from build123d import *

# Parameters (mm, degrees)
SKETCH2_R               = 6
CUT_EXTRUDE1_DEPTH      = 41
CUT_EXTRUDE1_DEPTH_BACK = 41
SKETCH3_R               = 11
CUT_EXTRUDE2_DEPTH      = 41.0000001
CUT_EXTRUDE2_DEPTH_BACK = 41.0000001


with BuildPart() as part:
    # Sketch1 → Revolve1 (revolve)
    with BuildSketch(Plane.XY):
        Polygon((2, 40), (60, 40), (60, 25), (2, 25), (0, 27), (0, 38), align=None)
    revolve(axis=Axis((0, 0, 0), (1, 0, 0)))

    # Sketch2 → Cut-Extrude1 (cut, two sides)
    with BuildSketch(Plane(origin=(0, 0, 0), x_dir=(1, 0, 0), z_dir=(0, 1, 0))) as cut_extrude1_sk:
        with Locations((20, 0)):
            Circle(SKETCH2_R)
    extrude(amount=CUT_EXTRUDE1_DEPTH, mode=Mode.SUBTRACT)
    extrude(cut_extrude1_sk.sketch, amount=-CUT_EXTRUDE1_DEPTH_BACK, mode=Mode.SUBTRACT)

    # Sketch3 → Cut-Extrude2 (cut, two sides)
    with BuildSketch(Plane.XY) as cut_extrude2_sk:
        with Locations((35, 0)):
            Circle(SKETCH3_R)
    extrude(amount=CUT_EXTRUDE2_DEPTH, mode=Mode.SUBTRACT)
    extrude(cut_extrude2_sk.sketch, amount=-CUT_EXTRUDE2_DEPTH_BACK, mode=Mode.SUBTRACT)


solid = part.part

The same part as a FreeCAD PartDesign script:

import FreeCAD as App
import Part
import Sketcher
from FreeCAD import Vector
Q = App.Units.Quantity

doc = App.newDocument("Part")
body = doc.addObject("PartDesign::Body", "Body")

sketch1 = body.newObject("Sketcher::SketchObject", "Sketch")
sketch1.AttachmentSupport = (doc.getObject("XY_Plane"), [""])
sketch1.MapMode = "FlatFace"
sketch1.addGeometry([
    Part.LineSegment(Vector(60, 40, 0), Vector(2, 40, 0)),
    Part.LineSegment(Vector(2, 40, 0), Vector(0, 38, 0)),
    Part.LineSegment(Vector(0, 38, 0), Vector(0, 27, 0)),
    Part.LineSegment(Vector(0, 27, 0), Vector(2, 25, 0)),
    Part.LineSegment(Vector(2, 25, 0), Vector(60, 25, 0)),
    Part.LineSegment(Vector(60, 25, 0), Vector(60, 40, 0)),
], False)
sketch1.addConstraint([
    Sketcher.Constraint("Coincident", 0, 2, 1, 1),
    Sketcher.Constraint("Coincident", 1, 2, 2, 1),
    Sketcher.Constraint("Coincident", 2, 2, 3, 1),
    Sketcher.Constraint("Coincident", 3, 2, 4, 1),
    Sketcher.Constraint("Coincident", 4, 2, 5, 1),
    Sketcher.Constraint("Coincident", 5, 2, 0, 1),
    Sketcher.Constraint("Horizontal", 0),
    Sketcher.Constraint("Vertical", 2),
    Sketcher.Constraint("Horizontal", 4),
    Sketcher.Constraint("Vertical", 5),
    Sketcher.Constraint("PointOnObject", 1, 2, -2),
    Sketcher.Constraint("Perpendicular", 1, 3),
    Sketcher.Constraint("Vertical", 0, 2, 3, 2),
    Sketcher.Constraint("Equal", 1, 3),
    Sketcher.Constraint("DistanceX", 0, 2, 0, 1, Q("58 mm")),
    Sketcher.Constraint("DistanceY", 2, 2, 2, 1, Q("11 mm")),
    Sketcher.Constraint("DistanceY", 5, 1, 5, 2, Q("15 mm")),
    Sketcher.Constraint("DistanceY", -1, 1, 0, 2, Q("40 mm")),
])
revolution = body.newObject("PartDesign::Revolution", "Revolution")
revolution.Profile = sketch1
revolution.ReferenceAxis = (sketch1, ["H_Axis"])
revolution.Angle = 360

sketch2 = body.newObject("Sketcher::SketchObject", "Sketch001")
sketch2.AttachmentSupport = (doc.getObject("XZ_Plane"), [""])
sketch2.MapMode = "FlatFace"
sketch2.addGeometry(Part.Circle(Vector(20, 0, 0), Vector(0, 0, 1), 6), False)
sketch2.addConstraint([
    Sketcher.Constraint("PointOnObject", 0, 3, -1),
    Sketcher.Constraint("Diameter", 0, Q("12 mm")),
    Sketcher.Constraint("DistanceX", -1, 1, 0, 3, Q("20 mm")),
])
pocket1 = body.newObject("PartDesign::Pocket", "Pocket")
pocket1.Profile = sketch2
pocket1.Type = "ThroughAll"
pocket1.Midplane = True

sketch3 = body.newObject("Sketcher::SketchObject", "Sketch002")
sketch3.AttachmentSupport = (doc.getObject("XY_Plane"), [""])
sketch3.MapMode = "FlatFace"
sketch3.addGeometry(Part.Circle(Vector(35, 0, 0), Vector(0, 0, 1), 11), False)
sketch3.addConstraint([
    Sketcher.Constraint("PointOnObject", 0, 3, -1),
    Sketcher.Constraint("Diameter", 0, Q("22 mm")),
    Sketcher.Constraint("DistanceX", -1, 1, 0, 3, Q("35 mm")),
])
pocket2 = body.newObject("PartDesign::Pocket", "Pocket001")
pocket2.Profile = sketch3
pocket2.Type = "ThroughAll"
pocket2.Midplane = True

doc.recompute()
